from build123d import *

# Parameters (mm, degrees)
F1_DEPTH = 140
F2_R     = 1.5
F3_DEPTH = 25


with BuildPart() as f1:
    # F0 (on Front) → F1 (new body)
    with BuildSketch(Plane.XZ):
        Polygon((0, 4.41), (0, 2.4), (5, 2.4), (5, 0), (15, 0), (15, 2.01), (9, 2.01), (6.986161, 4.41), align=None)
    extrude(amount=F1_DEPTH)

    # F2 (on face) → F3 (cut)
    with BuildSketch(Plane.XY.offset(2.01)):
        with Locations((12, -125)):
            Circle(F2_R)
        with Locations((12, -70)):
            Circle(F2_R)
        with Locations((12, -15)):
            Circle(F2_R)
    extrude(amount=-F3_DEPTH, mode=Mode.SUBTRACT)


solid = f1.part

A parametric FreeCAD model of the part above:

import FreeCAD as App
import Part
import Sketcher
from FreeCAD import Vector
Q = App.Units.Quantity


def add_polygon(sketch, points):
    """Adds a closed chain of lines whose ends are joined by coincident constraints."""
    first, n = sketch.GeometryCount, len(points)
    for a, b in zip(points, points[1:] + points[:1]):
        sketch.addGeometry(Part.LineSegment(App.Vector(*a, 0), App.Vector(*b, 0)), False)
    for i in range(n):
        sketch.addConstraint(Sketcher.Constraint("Coincident", first + i, 2, first + (i + 1) % n, 1))

doc = App.newDocument("Part")
body = doc.addObject("PartDesign::Body", "Body")

# Sketch on XZ plane
sketch1 = body.newObject("Sketcher::SketchObject", "Sketch")
sketch1.AttachmentSupport = (doc.getObject("XZ_Plane"), [""])
sketch1.MapMode = "FlatFace"
add_polygon(sketch1, [(0, 4.4), (0, 2.4), (5, 2.4), (5, 0), (15, 0), (15, 2), (9, 2), (7, 4.4)])  # lines 0-7
sketch1.addConstraint([
    Sketcher.Constraint("Vertical", 0),
    Sketcher.Constraint("Horizontal", 1),
    Sketcher.Constraint("Vertical", 2),
    Sketcher.Constraint("Horizontal", 3),
    Sketcher.Constraint("Vertical", 4),
    Sketcher.Constraint("Horizontal", 5),
    Sketcher.Constraint("Horizontal", 7),
    Sketcher.Constraint("PointOnObject", 0, 2, -2),
    Sketcher.Constraint("PointOnObject", 2, 2, -1),
    Sketcher.Constraint("Equal", 0, 4),
    Sketcher.Constraint("DistanceX", 1, 1, 1, 2, 5.0),
    Sketcher.Constraint("DistanceX", 3, 1, 3, 2, 10.0),
    Sketcher.Constraint("DistanceX", 5, 2, 5, 1, 6.0),
    Sketcher.Constraint("Angle", 6, Q("129.999998 deg")),
    Sketcher.Constraint("DistanceY", 2, 2, 2, 1, 2.4),
    Sketcher.Constraint("DistanceY", 0, 2, 0, 1, 2.01),
])
pad1 = body.newObject("PartDesign::Pad", "Pad")
pad1.Profile = sketch1
pad1.Length = 140

# Sketch on XY plane
sketch2 = body.newObject("Sketcher::SketchObject", "Sketch001")
sketch2.AttachmentSupport = (doc.getObject("XY_Plane"), [""])
sketch2.MapMode = "FlatFace"
sketch2.AttachmentOffset = App.Placement(Vector(0, 0, 2.01), App.Rotation())
sketch2.addGeometry([
    Part.Circle(Vector(12, -125, 0), Vector(0, 0, 1), 1.5),
    Part.Circle(Vector(12, -70, 0), Vector(0, 0, 1), 1.5),
    Part.Circle(Vector(12, -15, 0), Vector(0, 0, 1), 1.5),
], False)
sketch2.addConstraint([
    Sketcher.Constraint("Equal", 0, 1),
    Sketcher.Constraint("Equal", 1, 2),
    Sketcher.Constraint("Vertical", 0, 3, 1, 3),
    Sketcher.Constraint("Vertical", 1, 3, 2, 3),
    Sketcher.Constraint("Diameter", 0, 3.0),
    Sketcher.Constraint("DistanceX", -1, 1, 0, 3, 12.0),
    Sketcher.Constraint("DistanceY", 0, 3, -1, 1, 125.0),
    Sketcher.Constraint("DistanceY", 1, 3, -1, 1, 70.0),
    Sketcher.Constraint("DistanceY", 2, 3, -1, 1, 15.0),
])
pocket1 = body.newObject("PartDesign::Pocket", "Pocket")
pocket1.Profile = sketch2
pocket1.Length = 25

doc.recompute()
